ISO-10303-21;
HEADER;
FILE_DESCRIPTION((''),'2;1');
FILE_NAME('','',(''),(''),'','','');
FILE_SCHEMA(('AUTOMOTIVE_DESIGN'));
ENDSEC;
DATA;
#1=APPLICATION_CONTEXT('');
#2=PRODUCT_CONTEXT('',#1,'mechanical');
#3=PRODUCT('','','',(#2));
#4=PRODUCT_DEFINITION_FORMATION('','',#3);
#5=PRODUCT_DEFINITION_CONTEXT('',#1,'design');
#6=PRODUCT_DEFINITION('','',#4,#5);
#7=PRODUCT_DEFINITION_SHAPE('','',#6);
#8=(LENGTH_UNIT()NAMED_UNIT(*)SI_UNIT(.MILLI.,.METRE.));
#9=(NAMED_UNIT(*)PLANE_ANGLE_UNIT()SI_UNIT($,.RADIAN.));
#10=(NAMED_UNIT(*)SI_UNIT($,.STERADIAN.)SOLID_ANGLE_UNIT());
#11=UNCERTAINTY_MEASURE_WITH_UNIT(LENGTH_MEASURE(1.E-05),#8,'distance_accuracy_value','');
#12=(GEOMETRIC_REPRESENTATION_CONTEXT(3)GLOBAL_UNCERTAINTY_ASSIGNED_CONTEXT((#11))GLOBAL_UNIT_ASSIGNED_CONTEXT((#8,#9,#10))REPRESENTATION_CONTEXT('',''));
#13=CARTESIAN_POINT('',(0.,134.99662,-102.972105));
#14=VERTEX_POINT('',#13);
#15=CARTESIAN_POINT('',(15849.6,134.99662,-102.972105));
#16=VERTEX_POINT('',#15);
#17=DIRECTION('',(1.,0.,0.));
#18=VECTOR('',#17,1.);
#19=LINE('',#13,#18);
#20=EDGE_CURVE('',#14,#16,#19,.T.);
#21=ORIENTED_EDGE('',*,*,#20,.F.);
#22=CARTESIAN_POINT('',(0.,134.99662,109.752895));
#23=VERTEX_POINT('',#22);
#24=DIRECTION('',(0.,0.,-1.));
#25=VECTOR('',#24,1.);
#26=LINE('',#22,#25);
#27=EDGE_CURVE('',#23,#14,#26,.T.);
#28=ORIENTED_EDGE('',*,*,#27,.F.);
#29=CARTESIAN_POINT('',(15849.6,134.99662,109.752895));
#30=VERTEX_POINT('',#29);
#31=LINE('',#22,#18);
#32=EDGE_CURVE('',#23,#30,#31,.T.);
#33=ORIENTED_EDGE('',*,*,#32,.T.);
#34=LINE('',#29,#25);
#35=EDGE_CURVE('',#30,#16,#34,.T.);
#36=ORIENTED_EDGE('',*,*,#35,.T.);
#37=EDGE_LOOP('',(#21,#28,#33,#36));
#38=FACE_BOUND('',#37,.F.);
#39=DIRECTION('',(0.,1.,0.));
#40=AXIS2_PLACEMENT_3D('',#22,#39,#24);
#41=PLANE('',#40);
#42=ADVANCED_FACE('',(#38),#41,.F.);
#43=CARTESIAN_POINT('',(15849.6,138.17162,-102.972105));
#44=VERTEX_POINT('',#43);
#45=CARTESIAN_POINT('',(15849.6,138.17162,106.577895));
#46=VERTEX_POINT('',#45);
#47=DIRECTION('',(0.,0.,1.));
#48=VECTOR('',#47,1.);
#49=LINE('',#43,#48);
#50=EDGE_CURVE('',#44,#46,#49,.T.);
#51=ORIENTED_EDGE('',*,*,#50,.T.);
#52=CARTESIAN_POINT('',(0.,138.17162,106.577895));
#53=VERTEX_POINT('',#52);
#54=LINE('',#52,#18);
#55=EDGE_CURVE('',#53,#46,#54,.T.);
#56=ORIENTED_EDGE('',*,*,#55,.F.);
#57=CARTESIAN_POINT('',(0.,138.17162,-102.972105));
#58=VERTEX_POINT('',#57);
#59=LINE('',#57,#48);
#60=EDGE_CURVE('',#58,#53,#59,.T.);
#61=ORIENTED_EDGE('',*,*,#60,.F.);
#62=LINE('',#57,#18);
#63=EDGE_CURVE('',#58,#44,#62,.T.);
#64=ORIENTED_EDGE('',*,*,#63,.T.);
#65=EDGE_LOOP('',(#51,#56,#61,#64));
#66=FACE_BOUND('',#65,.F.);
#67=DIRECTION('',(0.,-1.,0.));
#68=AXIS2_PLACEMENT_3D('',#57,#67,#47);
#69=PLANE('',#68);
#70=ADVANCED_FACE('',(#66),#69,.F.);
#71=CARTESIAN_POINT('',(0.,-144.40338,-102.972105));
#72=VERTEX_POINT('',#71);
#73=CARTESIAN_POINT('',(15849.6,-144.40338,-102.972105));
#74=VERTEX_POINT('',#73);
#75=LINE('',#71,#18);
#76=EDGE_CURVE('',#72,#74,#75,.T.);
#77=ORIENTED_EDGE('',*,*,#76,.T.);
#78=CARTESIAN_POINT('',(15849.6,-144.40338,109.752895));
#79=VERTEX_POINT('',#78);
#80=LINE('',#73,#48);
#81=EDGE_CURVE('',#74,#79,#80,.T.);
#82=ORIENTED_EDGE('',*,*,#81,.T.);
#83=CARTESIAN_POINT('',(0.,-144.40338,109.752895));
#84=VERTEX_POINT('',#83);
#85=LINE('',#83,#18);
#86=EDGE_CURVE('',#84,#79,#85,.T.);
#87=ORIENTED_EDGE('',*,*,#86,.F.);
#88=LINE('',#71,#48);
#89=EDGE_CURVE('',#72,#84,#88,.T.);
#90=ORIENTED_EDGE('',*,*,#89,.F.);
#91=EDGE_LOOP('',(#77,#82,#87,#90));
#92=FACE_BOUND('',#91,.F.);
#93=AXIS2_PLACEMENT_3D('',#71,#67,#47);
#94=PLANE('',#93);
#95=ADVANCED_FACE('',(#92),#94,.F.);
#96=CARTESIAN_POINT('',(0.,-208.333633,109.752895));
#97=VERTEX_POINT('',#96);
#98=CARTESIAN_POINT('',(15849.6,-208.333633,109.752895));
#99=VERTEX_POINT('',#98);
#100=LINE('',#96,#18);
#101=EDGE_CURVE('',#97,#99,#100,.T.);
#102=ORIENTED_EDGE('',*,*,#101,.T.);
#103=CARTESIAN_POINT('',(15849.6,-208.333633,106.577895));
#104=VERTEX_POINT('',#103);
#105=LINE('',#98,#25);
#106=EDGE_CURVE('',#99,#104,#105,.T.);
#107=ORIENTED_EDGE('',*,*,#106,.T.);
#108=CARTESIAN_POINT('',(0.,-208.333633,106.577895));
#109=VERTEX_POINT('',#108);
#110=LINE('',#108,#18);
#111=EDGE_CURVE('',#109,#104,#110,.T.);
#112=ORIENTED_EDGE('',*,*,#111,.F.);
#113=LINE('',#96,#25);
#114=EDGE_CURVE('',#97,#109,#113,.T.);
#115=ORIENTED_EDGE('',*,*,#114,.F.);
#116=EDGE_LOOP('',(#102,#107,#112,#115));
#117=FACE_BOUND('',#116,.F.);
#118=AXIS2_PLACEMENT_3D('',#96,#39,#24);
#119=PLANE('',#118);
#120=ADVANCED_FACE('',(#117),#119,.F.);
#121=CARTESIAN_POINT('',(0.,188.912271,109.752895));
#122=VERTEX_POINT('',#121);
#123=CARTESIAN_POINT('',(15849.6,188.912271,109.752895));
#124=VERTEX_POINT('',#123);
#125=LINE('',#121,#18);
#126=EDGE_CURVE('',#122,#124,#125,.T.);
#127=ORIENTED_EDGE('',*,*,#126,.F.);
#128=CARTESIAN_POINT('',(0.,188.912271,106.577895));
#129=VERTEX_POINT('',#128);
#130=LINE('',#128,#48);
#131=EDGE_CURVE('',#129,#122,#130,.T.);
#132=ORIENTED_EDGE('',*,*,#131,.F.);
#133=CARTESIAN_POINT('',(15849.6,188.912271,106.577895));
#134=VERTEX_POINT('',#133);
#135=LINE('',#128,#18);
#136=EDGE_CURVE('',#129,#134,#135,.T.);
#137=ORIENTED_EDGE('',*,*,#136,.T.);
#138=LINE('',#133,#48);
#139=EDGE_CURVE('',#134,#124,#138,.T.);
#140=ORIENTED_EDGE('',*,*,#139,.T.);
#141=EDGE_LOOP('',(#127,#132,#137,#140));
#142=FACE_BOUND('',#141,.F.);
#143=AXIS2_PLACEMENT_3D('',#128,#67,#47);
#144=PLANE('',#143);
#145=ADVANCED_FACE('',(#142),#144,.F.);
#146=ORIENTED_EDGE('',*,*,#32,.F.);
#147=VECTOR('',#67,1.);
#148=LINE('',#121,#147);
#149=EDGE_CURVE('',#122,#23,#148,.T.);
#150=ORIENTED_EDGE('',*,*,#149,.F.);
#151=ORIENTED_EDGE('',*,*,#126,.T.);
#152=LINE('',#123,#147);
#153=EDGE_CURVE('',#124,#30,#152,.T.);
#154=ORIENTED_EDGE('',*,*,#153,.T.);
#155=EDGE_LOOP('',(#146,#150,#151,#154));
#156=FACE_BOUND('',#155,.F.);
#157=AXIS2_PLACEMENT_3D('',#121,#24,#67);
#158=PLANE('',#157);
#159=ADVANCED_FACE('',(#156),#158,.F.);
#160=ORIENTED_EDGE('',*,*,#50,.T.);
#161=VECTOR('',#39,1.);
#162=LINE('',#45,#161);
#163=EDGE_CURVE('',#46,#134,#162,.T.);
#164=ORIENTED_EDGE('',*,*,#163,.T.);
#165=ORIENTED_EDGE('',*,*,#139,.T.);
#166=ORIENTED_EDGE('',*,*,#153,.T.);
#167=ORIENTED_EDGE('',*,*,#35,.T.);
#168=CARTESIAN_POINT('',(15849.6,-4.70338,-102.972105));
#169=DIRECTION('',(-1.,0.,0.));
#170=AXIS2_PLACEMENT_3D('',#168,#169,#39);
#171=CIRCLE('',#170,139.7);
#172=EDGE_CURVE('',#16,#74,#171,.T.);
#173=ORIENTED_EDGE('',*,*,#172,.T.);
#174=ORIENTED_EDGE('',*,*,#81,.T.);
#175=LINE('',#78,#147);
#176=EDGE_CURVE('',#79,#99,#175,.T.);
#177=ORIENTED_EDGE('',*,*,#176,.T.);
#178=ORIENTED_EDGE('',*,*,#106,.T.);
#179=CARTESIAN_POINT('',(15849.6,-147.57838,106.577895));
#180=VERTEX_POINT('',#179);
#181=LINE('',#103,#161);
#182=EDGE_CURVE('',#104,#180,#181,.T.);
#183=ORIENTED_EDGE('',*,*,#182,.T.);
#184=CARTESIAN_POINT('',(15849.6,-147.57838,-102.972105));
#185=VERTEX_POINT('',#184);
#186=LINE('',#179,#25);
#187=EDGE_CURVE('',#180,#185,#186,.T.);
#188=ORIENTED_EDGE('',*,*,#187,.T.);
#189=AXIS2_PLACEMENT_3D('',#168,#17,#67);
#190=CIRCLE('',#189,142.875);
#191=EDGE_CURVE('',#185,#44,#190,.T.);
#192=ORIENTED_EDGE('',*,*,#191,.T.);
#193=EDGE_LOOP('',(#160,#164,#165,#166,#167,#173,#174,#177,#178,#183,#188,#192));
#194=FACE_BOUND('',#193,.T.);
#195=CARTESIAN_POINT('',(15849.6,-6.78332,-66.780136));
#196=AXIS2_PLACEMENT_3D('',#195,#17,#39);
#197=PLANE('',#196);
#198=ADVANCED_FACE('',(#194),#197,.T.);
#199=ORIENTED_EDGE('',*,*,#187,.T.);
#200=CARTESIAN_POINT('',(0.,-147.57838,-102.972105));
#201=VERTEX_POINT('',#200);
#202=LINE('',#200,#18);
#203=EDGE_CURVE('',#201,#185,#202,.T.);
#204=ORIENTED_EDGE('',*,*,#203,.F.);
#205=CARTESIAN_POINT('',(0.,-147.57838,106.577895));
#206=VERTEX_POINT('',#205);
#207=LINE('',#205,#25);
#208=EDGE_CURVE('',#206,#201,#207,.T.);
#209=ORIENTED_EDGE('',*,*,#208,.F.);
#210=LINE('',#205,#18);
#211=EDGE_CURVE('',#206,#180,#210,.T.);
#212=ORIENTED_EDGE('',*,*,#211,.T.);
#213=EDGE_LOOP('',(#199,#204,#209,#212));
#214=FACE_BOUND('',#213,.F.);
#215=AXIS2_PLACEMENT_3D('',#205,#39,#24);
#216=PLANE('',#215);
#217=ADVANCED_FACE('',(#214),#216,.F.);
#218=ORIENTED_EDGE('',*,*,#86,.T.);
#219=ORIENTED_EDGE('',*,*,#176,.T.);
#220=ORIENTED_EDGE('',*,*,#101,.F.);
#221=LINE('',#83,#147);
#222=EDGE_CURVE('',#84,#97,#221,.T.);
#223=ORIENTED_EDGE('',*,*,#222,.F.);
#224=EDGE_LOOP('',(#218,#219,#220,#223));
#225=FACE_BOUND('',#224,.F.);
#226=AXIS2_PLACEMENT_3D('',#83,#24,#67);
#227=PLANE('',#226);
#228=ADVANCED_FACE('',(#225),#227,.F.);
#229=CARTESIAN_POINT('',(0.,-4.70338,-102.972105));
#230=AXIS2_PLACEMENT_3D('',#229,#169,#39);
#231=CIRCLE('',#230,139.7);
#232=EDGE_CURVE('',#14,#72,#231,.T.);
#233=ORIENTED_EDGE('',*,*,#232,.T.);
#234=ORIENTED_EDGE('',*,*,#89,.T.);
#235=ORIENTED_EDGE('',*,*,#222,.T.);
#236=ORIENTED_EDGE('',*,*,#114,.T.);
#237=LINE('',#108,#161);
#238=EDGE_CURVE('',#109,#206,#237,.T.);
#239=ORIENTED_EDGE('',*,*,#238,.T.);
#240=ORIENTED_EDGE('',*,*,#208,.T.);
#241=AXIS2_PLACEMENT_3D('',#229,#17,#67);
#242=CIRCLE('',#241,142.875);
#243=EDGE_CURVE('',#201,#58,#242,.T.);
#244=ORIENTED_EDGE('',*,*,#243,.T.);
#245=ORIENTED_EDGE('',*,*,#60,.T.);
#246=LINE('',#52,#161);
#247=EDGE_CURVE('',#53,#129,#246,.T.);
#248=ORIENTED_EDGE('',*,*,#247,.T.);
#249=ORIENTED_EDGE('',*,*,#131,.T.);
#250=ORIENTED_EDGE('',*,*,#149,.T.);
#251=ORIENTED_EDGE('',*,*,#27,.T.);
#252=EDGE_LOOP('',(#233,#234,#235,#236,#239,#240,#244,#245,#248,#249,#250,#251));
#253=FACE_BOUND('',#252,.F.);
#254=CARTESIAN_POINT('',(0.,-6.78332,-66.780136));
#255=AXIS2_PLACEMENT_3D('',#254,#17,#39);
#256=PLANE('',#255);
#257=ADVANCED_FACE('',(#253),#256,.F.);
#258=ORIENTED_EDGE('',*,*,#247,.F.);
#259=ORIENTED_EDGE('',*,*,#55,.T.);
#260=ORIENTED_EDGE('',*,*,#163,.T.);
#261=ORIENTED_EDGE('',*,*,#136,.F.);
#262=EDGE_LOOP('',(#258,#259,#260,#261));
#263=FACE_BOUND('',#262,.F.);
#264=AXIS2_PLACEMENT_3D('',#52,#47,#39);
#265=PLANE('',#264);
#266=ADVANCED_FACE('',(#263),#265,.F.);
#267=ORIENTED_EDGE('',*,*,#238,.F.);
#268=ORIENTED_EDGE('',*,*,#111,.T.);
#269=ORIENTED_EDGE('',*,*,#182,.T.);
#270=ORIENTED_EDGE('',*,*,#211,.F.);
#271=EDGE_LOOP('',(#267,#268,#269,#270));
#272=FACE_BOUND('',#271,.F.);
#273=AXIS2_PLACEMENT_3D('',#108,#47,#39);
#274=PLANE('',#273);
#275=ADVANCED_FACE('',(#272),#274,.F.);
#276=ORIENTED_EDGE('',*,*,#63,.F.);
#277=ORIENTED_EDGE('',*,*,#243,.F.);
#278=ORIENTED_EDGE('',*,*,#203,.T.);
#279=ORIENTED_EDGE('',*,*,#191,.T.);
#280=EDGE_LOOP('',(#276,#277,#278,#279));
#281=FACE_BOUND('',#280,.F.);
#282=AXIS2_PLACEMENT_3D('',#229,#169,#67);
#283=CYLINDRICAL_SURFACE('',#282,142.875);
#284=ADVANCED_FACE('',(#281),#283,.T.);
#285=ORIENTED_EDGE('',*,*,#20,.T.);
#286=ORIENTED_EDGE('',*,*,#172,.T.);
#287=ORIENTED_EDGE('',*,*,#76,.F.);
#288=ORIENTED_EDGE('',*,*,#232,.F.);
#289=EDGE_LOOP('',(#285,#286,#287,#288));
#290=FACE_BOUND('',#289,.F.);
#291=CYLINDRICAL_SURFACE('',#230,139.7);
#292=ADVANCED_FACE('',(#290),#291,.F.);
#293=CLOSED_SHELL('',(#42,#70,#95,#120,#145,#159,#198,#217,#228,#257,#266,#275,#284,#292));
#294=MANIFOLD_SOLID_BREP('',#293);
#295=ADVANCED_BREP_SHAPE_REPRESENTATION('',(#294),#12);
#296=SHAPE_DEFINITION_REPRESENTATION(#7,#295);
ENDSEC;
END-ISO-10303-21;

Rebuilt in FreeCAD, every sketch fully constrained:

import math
import FreeCAD as App
import Part
import Sketcher
from FreeCAD import Vector
Q = App.Units.Quantity

doc = App.newDocument("Part")
body = doc.addObject("PartDesign::Body", "Body")

# Sketch on YZ plane
sketch1 = doc.addObject("Sketcher::SketchObject", "Sketch")
body.addObject(sketch1)
sketch1.AttachmentSupport = (doc.YZ_Plane, [""])
sketch1.MapMode = "FlatFace"
sketch1.addGeometry(Part.LineSegment(Vector(-208.333633, 106.577895, 0), Vector(-147.57838, 106.577895, 0)), False)
sketch1.addGeometry(Part.LineSegment(Vector(-147.57838, 106.577895, 0), Vector(-147.57838, -102.972105, 0)), False)
sketch1.addGeometry(Part.ArcOfCircle(Part.Circle(Vector(-4.70338, -102.972105, 0), Vector(0, 0, 1), 142.875), math.radians(180), math.radians(360)), False)
sketch1.addGeometry(Part.LineSegment(Vector(138.17162, -102.972105, 0), Vector(138.17162, 106.577895, 0)), False)
sketch1.addGeometry(Part.LineSegment(Vector(138.17162, 106.577895, 0), Vector(188.912271, 106.577895, 0)), False)
sketch1.addGeometry(Part.LineSegment(Vector(188.912271, 106.577895, 0), Vector(188.912271, 109.752895, 0)), False)
sketch1.addGeometry(Part.LineSegment(Vector(188.912271, 109.752895, 0), Vector(134.99662, 109.752895, 0)), False)
sketch1.addGeometry(Part.LineSegment(Vector(134.99662, 109.752895, 0), Vector(134.99662, -102.972105, 0)), False)
sketch1.addGeometry(Part.ArcOfCircle(Part.Circle(Vector(-4.70338, -102.972105, 0), Vector(0, 0, 1), 139.7), math.radians(180), math.radians(360)), False)
sketch1.addGeometry(Part.LineSegment(Vector(-144.40338, -102.972105, 0), Vector(-144.40338, 109.752895, 0)), False)
sketch1.addGeometry(Part.LineSegment(Vector(-144.40338, 109.752895, 0), Vector(-208.333633, 109.752895, 0)), False)
sketch1.addGeometry(Part.LineSegment(Vector(-208.333633, 109.752895, 0), Vector(-208.333633, 106.577895, 0)), False)
sketch1.addConstraint(Sketcher.Constraint("Coincident", 0, 2, 1, 1))
sketch1.addConstraint(Sketcher.Constraint("Tangent", 1, 2, 2, 1))
sketch1.addConstraint(Sketcher.Constraint("Tangent", 2, 2, 3, 1))
sketch1.addConstraint(Sketcher.Constraint("Coincident", 3, 2, 4, 1))
sketch1.addConstraint(Sketcher.Constraint("Coincident", 4, 2, 5, 1))
sketch1.addConstraint(Sketcher.Constraint("Coincident", 5, 2, 6, 1))
sketch1.addConstraint(Sketcher.Constraint("Coincident", 6, 2, 7, 1))
sketch1.addConstraint(Sketcher.Constraint("Tangent", 7, 2, 8, 2))
sketch1.addConstraint(Sketcher.Constraint("Tangent", 8, 1, 9, 1))
sketch1.addConstraint(Sketcher.Constraint("Coincident", 9, 2, 10, 1))
sketch1.addConstraint(Sketcher.Constraint("Coincident", 10, 2, 11, 1))
sketch1.addConstraint(Sketcher.Constraint("Coincident", 11, 2, 0, 1))
sketch1.addConstraint(Sketcher.Constraint("Horizontal", 0))
sketch1.addConstraint(Sketcher.Constraint("Vertical", 1))
sketch1.addConstraint(Sketcher.Constraint("Vertical", 3))
sketch1.addConstraint(Sketcher.Constraint("Horizontal", 4))
sketch1.addConstraint(Sketcher.Constraint("Vertical", 5))
sketch1.addConstraint(Sketcher.Constraint("Horizontal", 6))
sketch1.addConstraint(Sketcher.Constraint("Vertical", 7))
sketch1.addConstraint(Sketcher.Constraint("Vertical", 9))
sketch1.addConstraint(Sketcher.Constraint("Horizontal", 10))
sketch1.addConstraint(Sketcher.Constraint("Vertical", 11))
sketch1.addConstraint(Sketcher.Constraint("Coincident", 8, 3, 2, 3))
sketch1.addConstraint(Sketcher.Constraint("Horizontal", 0, 2, 3, 2))
sketch1.addConstraint(Sketcher.Constraint("Horizontal", 6, 2, 9, 2))
sketch1.addConstraint(Sketcher.Constraint("Radius", 8, Q("5.5 in")))
sketch1.addConstraint(Sketcher.Constraint("Radius", 2, Q("5.625 in")))
sketch1.addConstraint(Sketcher.Constraint("DistanceY", 1, 2, 1, 1, Q("8.25 in")))
sketch1.addConstraint(Sketcher.Constraint("DistanceY", 5, 1, 5, 2, Q("0.125 in")))
sketch1.addConstraint(Sketcher.Constraint("DistanceX", 4, 1, 4, 2, 50.740651))
sketch1.addConstraint(Sketcher.Constraint("DistanceX", 0, 1, 0, 2, 60.755253))
sketch1.addConstraint(Sketcher.Constraint("DistanceX", 2, 3, -1, 1, 4.70338))
sketch1.addConstraint(Sketcher.Constraint("DistanceY", 2, 3, -1, 1, 102.972105))
pad1 = doc.addObject("PartDesign::Pad", "Pad")
body.addObject(pad1)
pad1.Profile = sketch1
pad1.Length = Q("624 in")

doc.recompute()
